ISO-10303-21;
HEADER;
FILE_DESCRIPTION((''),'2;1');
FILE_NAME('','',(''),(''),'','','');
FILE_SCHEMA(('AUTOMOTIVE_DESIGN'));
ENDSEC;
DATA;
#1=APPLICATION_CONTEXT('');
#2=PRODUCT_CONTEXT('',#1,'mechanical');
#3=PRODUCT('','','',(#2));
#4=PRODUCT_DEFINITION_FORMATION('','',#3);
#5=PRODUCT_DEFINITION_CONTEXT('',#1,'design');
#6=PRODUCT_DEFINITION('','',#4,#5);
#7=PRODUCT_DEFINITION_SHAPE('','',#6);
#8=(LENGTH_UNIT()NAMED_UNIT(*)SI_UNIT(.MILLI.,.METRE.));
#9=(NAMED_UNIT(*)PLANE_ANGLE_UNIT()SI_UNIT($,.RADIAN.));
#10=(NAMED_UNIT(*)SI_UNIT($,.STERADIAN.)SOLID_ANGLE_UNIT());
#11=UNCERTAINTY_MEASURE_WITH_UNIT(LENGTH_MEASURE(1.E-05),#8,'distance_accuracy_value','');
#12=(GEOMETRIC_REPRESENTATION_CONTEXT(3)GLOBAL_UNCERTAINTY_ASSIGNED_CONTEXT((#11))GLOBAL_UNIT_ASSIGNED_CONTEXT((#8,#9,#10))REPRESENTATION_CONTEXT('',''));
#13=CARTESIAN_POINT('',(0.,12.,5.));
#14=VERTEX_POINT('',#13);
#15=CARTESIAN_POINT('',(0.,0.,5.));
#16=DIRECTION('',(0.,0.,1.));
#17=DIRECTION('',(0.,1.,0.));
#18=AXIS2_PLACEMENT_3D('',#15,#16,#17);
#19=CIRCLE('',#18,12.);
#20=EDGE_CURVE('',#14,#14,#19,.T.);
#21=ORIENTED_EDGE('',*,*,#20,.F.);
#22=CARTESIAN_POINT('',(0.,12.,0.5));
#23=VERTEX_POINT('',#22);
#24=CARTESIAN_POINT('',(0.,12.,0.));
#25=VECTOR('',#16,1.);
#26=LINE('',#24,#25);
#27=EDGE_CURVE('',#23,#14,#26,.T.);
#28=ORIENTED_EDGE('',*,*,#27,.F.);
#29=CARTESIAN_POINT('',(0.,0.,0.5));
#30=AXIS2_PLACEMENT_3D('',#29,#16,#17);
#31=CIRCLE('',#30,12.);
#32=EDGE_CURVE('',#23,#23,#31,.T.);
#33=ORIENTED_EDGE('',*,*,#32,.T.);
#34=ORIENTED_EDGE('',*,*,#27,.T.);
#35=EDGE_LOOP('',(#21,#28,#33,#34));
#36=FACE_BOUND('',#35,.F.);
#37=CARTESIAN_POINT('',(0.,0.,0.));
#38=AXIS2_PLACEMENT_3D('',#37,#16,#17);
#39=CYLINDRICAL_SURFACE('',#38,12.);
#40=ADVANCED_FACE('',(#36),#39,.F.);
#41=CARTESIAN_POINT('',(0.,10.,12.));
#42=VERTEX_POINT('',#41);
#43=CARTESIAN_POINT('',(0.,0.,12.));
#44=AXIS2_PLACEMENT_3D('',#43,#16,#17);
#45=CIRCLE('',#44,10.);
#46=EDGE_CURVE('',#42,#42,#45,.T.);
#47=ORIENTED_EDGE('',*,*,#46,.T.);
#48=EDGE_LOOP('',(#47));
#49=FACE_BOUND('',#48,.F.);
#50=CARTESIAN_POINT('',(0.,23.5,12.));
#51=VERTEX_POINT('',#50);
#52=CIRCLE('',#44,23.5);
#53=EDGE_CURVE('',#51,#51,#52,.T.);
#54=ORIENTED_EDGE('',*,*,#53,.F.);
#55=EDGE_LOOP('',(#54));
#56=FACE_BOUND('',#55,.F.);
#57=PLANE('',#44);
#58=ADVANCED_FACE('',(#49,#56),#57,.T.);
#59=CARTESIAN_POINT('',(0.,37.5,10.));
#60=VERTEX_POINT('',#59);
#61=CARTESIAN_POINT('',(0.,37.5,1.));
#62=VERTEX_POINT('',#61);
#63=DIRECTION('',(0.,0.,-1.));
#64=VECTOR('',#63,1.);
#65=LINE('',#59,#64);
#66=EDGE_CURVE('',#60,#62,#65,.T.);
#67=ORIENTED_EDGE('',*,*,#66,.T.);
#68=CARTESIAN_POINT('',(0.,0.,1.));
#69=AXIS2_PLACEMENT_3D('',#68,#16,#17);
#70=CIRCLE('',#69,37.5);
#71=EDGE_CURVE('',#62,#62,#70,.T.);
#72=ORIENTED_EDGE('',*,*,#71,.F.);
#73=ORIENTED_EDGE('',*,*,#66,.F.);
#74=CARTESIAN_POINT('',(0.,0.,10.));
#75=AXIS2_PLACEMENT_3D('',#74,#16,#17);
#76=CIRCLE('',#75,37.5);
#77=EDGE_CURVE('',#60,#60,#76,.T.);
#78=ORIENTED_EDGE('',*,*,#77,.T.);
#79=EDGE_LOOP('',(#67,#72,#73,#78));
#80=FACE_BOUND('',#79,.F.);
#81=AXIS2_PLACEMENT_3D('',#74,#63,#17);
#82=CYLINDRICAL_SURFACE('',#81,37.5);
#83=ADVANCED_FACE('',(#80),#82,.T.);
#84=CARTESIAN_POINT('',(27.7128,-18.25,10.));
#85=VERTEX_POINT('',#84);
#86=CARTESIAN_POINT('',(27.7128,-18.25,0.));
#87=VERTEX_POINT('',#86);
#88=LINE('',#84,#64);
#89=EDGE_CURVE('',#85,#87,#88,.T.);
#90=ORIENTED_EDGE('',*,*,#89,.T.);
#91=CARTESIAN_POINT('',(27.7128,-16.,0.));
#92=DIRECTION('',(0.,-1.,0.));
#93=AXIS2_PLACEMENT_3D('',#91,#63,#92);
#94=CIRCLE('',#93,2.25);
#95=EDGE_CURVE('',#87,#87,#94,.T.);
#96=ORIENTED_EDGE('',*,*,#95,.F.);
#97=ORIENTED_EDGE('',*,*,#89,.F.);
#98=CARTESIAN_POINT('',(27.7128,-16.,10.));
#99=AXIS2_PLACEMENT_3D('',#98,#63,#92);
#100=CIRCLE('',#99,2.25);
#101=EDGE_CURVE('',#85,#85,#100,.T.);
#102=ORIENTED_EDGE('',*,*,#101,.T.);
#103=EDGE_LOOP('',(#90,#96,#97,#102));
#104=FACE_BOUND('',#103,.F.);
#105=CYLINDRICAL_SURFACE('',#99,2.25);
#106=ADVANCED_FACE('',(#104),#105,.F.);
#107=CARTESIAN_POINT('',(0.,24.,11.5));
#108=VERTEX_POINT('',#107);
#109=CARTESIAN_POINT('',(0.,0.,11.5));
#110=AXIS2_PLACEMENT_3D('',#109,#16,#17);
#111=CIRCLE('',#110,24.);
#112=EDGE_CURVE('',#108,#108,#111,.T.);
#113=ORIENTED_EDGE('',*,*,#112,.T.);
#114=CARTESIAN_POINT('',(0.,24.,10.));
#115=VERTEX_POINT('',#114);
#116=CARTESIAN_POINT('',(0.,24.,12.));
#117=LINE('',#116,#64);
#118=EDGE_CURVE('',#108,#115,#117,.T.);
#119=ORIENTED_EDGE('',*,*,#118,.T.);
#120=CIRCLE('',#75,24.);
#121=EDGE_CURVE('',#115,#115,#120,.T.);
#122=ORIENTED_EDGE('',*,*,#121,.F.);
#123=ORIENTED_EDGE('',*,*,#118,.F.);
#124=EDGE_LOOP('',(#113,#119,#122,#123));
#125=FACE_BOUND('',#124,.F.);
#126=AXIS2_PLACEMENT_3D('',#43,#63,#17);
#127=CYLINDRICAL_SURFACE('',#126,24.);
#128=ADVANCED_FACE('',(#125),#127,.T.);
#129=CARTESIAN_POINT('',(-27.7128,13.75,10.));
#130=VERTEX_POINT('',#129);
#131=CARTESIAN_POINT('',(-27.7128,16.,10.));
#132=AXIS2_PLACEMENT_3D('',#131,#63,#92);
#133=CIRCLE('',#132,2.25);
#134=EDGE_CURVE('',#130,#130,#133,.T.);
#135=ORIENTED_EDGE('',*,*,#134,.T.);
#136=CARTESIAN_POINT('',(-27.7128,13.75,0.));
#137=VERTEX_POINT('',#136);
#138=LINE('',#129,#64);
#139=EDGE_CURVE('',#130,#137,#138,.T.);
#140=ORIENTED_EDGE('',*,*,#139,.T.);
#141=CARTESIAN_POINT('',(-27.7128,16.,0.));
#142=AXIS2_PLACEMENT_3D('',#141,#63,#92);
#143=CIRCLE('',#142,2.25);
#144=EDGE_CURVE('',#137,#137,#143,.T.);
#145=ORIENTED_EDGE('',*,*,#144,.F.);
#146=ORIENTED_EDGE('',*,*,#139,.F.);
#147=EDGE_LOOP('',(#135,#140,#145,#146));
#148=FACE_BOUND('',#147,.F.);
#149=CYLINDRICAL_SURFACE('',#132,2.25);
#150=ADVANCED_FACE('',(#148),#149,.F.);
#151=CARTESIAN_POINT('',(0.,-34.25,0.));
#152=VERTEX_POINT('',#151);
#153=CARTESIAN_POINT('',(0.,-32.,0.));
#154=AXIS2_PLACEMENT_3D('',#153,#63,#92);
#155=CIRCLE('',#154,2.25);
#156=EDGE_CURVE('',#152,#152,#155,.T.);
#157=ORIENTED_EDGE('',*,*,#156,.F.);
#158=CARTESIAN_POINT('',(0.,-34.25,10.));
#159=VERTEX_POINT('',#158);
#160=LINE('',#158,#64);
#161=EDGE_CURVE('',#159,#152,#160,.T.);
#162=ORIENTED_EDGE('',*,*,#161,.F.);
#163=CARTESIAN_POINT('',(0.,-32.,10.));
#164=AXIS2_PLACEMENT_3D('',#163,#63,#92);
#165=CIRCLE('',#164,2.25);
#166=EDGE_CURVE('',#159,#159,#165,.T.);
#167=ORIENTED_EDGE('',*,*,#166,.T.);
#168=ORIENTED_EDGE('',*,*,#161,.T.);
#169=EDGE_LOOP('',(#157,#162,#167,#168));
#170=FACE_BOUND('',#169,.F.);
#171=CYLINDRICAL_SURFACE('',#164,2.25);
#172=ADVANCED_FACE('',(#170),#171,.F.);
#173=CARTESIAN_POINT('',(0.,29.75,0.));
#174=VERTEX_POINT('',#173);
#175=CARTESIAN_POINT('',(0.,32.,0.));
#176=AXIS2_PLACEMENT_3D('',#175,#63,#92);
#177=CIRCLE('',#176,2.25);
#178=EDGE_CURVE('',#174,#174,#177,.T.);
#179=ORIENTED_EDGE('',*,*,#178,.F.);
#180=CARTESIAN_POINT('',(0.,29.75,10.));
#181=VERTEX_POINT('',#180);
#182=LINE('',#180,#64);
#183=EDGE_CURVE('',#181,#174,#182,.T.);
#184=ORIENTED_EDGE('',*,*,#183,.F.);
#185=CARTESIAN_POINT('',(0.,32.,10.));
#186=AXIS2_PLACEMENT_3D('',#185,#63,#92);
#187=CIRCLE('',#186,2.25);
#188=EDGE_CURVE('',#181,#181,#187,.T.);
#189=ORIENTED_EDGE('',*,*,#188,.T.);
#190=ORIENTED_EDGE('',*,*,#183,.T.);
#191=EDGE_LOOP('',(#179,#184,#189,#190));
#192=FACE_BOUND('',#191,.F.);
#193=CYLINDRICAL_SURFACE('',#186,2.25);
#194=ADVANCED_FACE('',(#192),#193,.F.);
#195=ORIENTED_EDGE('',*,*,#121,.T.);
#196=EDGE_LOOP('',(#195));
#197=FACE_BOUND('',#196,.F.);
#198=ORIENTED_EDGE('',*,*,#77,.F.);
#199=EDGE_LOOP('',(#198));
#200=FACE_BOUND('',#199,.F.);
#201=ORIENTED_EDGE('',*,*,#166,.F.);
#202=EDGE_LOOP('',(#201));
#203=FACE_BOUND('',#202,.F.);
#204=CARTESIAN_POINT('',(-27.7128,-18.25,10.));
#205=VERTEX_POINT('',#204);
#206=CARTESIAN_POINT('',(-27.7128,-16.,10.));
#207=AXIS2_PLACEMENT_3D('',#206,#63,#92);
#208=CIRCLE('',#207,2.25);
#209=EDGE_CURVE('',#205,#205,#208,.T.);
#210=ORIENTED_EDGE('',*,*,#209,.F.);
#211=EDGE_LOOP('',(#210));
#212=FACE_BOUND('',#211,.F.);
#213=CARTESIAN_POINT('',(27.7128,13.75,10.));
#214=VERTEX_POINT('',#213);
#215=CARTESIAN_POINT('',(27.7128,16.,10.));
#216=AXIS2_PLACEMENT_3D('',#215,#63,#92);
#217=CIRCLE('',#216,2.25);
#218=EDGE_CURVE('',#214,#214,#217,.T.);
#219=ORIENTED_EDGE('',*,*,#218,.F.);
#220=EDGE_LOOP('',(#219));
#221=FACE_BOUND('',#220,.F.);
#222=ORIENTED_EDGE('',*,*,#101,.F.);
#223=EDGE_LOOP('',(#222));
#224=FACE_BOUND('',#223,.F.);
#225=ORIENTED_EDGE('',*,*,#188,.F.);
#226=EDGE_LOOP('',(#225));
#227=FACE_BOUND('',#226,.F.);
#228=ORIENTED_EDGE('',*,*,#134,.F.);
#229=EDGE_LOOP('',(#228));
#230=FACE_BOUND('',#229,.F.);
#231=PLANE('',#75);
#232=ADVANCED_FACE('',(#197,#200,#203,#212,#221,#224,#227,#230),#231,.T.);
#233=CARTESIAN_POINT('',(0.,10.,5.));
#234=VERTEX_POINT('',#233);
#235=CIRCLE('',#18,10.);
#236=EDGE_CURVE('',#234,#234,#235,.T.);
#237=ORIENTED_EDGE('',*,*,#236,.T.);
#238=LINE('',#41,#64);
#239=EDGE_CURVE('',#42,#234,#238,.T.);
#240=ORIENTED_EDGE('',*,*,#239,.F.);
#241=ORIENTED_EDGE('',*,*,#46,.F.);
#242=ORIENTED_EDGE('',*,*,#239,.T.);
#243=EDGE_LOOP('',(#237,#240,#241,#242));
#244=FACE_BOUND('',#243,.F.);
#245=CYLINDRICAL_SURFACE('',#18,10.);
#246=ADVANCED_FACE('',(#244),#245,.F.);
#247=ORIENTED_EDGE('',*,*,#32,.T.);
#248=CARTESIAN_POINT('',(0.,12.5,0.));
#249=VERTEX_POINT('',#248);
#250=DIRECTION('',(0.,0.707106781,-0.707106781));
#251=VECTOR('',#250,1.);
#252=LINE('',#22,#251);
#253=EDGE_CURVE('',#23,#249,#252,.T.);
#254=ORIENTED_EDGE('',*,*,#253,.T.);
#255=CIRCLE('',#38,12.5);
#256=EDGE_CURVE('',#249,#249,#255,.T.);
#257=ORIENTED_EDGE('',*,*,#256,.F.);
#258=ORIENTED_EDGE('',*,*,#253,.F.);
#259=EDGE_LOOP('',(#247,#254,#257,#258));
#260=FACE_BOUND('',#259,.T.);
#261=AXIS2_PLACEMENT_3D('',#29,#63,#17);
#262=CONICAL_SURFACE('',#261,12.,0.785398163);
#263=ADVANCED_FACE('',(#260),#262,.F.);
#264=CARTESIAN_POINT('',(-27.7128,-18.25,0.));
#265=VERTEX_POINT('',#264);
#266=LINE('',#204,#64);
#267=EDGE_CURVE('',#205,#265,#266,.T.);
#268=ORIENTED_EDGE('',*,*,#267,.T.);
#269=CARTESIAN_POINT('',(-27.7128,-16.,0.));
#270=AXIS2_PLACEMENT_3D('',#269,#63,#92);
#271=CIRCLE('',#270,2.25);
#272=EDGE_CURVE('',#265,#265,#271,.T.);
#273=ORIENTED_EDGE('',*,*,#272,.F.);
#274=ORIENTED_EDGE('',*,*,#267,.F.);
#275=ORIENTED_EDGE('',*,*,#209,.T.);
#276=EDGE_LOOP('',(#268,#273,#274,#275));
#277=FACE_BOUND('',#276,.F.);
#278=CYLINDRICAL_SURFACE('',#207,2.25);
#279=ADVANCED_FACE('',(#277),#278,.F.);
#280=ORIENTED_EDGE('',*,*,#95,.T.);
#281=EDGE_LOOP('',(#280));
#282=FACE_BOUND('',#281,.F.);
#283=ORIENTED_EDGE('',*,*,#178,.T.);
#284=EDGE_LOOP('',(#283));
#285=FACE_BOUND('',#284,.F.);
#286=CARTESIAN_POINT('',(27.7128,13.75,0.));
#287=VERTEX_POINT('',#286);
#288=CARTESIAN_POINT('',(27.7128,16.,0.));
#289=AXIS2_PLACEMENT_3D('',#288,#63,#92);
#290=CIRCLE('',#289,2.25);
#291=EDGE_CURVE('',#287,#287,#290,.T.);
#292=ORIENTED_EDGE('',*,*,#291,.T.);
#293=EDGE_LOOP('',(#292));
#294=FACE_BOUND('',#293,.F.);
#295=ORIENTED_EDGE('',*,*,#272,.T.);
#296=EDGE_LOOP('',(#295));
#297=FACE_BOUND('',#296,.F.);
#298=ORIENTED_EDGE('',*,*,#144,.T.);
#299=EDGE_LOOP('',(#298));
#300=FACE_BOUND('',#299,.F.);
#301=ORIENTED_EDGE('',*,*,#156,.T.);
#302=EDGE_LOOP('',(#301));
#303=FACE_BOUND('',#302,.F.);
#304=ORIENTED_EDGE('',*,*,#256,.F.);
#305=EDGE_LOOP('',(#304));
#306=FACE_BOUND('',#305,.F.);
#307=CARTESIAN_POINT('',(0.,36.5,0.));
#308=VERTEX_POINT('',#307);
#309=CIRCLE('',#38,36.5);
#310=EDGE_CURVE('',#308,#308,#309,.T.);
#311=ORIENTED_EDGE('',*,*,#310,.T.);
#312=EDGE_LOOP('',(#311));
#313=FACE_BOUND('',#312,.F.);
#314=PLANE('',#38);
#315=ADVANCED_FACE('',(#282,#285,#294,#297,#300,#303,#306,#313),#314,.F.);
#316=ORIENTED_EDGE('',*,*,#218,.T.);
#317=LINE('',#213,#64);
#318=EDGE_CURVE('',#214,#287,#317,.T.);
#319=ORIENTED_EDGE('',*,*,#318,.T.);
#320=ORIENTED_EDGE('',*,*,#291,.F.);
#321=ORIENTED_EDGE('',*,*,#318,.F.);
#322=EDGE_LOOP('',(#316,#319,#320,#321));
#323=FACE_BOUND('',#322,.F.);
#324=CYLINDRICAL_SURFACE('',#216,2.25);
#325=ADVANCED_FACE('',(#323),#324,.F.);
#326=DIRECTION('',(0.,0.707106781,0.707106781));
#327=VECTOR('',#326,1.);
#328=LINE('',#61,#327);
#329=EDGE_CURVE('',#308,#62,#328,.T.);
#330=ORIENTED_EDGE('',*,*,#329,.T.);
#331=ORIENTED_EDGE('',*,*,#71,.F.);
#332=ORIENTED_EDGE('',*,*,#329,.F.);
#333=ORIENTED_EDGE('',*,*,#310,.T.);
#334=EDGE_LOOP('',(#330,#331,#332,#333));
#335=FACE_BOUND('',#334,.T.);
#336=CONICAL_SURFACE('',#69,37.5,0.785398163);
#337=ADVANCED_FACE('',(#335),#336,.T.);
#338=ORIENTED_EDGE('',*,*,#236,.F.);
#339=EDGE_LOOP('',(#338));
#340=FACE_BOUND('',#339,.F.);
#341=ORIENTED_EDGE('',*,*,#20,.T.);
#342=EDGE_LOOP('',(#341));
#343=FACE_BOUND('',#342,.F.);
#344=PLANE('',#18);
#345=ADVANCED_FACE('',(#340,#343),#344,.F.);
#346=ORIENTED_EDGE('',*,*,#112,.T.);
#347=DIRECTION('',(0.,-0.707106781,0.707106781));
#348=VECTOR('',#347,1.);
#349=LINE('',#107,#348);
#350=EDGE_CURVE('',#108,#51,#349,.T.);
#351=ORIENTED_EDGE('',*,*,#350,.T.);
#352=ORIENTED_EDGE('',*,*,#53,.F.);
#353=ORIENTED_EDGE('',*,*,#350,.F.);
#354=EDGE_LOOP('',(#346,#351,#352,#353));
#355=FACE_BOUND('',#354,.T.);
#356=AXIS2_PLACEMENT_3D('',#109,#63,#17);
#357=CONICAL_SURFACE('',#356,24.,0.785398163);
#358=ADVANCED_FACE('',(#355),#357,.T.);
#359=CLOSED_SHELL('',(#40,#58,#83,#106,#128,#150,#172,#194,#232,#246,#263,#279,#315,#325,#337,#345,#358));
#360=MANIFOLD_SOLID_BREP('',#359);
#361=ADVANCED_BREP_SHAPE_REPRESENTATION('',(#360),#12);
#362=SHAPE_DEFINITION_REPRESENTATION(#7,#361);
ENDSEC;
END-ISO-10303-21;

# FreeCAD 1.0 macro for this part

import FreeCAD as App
import Part
import Sketcher
from FreeCAD import Vector
Q = App.Units.Quantity


def edges_at(feature, points):
    """Names of the edges that pass closest to the given points."""
    edges = feature.Shape.Edges
    near = lambda p: min(range(len(edges)), key=lambda i: edges[i].distToShape(Part.Vertex(*p))[0])
    return sorted({f"Edge{near(p) + 1}" for p in points})

doc = App.newDocument("Part")
body = doc.addObject("PartDesign::Body", "Body")

sketch1 = body.newObject("Sketcher::SketchObject", "Sketch")
sketch1.AttachmentSupport = (doc.getObject("YZ_Plane"), [""])
sketch1.MapMode = "FlatFace"
sketch1.addGeometry([
    Part.LineSegment(Vector(12, 5, 0), Vector(12, 0, 0)),
    Part.LineSegment(Vector(12, 0, 0), Vector(37.5, 0, 0)),
    Part.LineSegment(Vector(37.5, 0, 0), Vector(37.5, 10, 0)),
    Part.LineSegment(Vector(37.5, 10, 0), Vector(24, 10, 0)),
    Part.LineSegment(Vector(24, 10, 0), Vector(24, 12, 0)),
    Part.LineSegment(Vector(24, 12, 0), Vector(10, 12, 0)),
    Part.LineSegment(Vector(10, 12, 0), Vector(10, 5, 0)),
    Part.LineSegment(Vector(10, 5, 0), Vector(12, 5, 0)),
], False)
sketch1.addConstraint([
    Sketcher.Constraint("Coincident", 0, 2, 1, 1),
    Sketcher.Constraint("Coincident", 1, 2, 2, 1),
    Sketcher.Constraint("Coincident", 2, 2, 3, 1),
    Sketcher.Constraint("Coincident", 3, 2, 4, 1),
    Sketcher.Constraint("Coincident", 4, 2, 5, 1),
    Sketcher.Constraint("Coincident", 5, 2, 6, 1),
    Sketcher.Constraint("Coincident", 6, 2, 7, 1),
    Sketcher.Constraint("Coincident", 7, 2, 0, 1),
    Sketcher.Constraint("Vertical", 0),
    Sketcher.Constraint("Horizontal", 1),
    Sketcher.Constraint("Vertical", 2),
    Sketcher.Constraint("Horizontal", 3),
    Sketcher.Constraint("Vertical", 4),
    Sketcher.Constraint("Horizontal", 5),
    Sketcher.Constraint("Vertical", 6),
    Sketcher.Constraint("Horizontal", 7),
    Sketcher.Constraint("PointOnObject", 0, 2, -1),
    Sketcher.Constraint("Equal", 7, 4),
    Sketcher.Constraint("DistanceX", 7, 1, 7, 2, Q("2 mm")),
    Sketcher.Constraint("DistanceY", 0, 2, 0, 1, Q("5 mm")),
    Sketcher.Constraint("DistanceY", 2, 1, 2, 2, Q("10 mm")),
    Sketcher.Constraint("DistanceX", -1, 1, 0, 2, Q("12 mm")),
    Sketcher.Constraint("DistanceX", -1, 1, 3, 2, Q("24 mm")),
    Sketcher.Constraint("DistanceX", -1, 1, 1, 2, Q("37.5 mm")),
])
revolution = body.newObject("PartDesign::Revolution", "Revolution")
revolution.Profile = sketch1
revolution.ReferenceAxis = (sketch1, ["V_Axis"])
revolution.Angle = 360
doc.recompute()

chamfer = body.newObject("PartDesign::Chamfer", "Chamfer")
chamfer.Base = (revolution, edges_at(revolution, [(0, -12, 0)]))
chamfer.Size = 0.5

sketch2 = body.newObject("Sketcher::SketchObject", "Sketch001")
sketch2.AttachmentSupport = (doc.getObject("XY_Plane"), [""])
sketch2.MapMode = "FlatFace"
sketch2.AttachmentOffset = App.Placement(Vector(0, 0, 10), App.Rotation())
sketch2.addGeometry([
    Part.Circle(Vector(0, 32, 0), Vector(0, 0, 1), 2.2),
    Part.Circle(Vector(-27.7, 16, 0), Vector(0, 0, 1), 2.2),
    Part.Circle(Vector(-27.7, -16, 0), Vector(0, 0, 1), 2.2),
    Part.Circle(Vector(0, -32, 0), Vector(0, 0, 1), 2.2),
    Part.Circle(Vector(27.7, -16, 0), Vector(0, 0, 1), 2.2),
    Part.Circle(Vector(27.7, 16, 0), Vector(0, 0, 1), 2.2),
], False)
sketch2.addConstraint([
    Sketcher.Constraint("Equal", 0, 1),
    Sketcher.Constraint("Equal", 1, 2),
    Sketcher.Constraint("Equal", 2, 3),
    Sketcher.Constraint("Equal", 3, 4),
    Sketcher.Constraint("Equal", 4, 5),
    Sketcher.Constraint("Symmetric", 0, 3, 3, 3, -1, 1),
    Sketcher.Constraint("Symmetric", 1, 3, 4, 3, -1, 1),
    Sketcher.Constraint("Symmetric", 2, 3, 5, 3, -1, 1),
    Sketcher.Constraint("Symmetric", 2, 3, 4, 3, -2),
    Sketcher.Constraint("PointOnObject", 0, 3, -2),
    Sketcher.Constraint("Diameter", 0, Q("4.5 mm")),
    Sketcher.Constraint("DistanceY", -1, 1, 0, 3, Q("32 mm")),
    Sketcher.Constraint("DistanceY", -1, 1, 1, 3, Q("16 mm")),
    Sketcher.Constraint("DistanceX", 1, 3, -1, 1, Q("27.7128 mm")),
])
doc.recompute()
hole = body.newObject("PartDesign::Hole", "Hole")
hole.Profile = sketch2
hole.ThreadType = "None"
hole.Diameter = 4.5
hole.DepthType = "ThroughAll"
doc.recompute()

chamfer2 = body.newObject("PartDesign::Chamfer", "Chamfer001")
chamfer2.Base = (hole, edges_at(hole, [(0, -37.5, 0)]))
chamfer2.Size = 1
doc.recompute()

chamfer3 = body.newObject("PartDesign::Chamfer", "Chamfer002")
chamfer3.Base = (chamfer2, edges_at(chamfer2, [(0, -24, 12)]))
chamfer3.Size = 0.5

doc.recompute()
